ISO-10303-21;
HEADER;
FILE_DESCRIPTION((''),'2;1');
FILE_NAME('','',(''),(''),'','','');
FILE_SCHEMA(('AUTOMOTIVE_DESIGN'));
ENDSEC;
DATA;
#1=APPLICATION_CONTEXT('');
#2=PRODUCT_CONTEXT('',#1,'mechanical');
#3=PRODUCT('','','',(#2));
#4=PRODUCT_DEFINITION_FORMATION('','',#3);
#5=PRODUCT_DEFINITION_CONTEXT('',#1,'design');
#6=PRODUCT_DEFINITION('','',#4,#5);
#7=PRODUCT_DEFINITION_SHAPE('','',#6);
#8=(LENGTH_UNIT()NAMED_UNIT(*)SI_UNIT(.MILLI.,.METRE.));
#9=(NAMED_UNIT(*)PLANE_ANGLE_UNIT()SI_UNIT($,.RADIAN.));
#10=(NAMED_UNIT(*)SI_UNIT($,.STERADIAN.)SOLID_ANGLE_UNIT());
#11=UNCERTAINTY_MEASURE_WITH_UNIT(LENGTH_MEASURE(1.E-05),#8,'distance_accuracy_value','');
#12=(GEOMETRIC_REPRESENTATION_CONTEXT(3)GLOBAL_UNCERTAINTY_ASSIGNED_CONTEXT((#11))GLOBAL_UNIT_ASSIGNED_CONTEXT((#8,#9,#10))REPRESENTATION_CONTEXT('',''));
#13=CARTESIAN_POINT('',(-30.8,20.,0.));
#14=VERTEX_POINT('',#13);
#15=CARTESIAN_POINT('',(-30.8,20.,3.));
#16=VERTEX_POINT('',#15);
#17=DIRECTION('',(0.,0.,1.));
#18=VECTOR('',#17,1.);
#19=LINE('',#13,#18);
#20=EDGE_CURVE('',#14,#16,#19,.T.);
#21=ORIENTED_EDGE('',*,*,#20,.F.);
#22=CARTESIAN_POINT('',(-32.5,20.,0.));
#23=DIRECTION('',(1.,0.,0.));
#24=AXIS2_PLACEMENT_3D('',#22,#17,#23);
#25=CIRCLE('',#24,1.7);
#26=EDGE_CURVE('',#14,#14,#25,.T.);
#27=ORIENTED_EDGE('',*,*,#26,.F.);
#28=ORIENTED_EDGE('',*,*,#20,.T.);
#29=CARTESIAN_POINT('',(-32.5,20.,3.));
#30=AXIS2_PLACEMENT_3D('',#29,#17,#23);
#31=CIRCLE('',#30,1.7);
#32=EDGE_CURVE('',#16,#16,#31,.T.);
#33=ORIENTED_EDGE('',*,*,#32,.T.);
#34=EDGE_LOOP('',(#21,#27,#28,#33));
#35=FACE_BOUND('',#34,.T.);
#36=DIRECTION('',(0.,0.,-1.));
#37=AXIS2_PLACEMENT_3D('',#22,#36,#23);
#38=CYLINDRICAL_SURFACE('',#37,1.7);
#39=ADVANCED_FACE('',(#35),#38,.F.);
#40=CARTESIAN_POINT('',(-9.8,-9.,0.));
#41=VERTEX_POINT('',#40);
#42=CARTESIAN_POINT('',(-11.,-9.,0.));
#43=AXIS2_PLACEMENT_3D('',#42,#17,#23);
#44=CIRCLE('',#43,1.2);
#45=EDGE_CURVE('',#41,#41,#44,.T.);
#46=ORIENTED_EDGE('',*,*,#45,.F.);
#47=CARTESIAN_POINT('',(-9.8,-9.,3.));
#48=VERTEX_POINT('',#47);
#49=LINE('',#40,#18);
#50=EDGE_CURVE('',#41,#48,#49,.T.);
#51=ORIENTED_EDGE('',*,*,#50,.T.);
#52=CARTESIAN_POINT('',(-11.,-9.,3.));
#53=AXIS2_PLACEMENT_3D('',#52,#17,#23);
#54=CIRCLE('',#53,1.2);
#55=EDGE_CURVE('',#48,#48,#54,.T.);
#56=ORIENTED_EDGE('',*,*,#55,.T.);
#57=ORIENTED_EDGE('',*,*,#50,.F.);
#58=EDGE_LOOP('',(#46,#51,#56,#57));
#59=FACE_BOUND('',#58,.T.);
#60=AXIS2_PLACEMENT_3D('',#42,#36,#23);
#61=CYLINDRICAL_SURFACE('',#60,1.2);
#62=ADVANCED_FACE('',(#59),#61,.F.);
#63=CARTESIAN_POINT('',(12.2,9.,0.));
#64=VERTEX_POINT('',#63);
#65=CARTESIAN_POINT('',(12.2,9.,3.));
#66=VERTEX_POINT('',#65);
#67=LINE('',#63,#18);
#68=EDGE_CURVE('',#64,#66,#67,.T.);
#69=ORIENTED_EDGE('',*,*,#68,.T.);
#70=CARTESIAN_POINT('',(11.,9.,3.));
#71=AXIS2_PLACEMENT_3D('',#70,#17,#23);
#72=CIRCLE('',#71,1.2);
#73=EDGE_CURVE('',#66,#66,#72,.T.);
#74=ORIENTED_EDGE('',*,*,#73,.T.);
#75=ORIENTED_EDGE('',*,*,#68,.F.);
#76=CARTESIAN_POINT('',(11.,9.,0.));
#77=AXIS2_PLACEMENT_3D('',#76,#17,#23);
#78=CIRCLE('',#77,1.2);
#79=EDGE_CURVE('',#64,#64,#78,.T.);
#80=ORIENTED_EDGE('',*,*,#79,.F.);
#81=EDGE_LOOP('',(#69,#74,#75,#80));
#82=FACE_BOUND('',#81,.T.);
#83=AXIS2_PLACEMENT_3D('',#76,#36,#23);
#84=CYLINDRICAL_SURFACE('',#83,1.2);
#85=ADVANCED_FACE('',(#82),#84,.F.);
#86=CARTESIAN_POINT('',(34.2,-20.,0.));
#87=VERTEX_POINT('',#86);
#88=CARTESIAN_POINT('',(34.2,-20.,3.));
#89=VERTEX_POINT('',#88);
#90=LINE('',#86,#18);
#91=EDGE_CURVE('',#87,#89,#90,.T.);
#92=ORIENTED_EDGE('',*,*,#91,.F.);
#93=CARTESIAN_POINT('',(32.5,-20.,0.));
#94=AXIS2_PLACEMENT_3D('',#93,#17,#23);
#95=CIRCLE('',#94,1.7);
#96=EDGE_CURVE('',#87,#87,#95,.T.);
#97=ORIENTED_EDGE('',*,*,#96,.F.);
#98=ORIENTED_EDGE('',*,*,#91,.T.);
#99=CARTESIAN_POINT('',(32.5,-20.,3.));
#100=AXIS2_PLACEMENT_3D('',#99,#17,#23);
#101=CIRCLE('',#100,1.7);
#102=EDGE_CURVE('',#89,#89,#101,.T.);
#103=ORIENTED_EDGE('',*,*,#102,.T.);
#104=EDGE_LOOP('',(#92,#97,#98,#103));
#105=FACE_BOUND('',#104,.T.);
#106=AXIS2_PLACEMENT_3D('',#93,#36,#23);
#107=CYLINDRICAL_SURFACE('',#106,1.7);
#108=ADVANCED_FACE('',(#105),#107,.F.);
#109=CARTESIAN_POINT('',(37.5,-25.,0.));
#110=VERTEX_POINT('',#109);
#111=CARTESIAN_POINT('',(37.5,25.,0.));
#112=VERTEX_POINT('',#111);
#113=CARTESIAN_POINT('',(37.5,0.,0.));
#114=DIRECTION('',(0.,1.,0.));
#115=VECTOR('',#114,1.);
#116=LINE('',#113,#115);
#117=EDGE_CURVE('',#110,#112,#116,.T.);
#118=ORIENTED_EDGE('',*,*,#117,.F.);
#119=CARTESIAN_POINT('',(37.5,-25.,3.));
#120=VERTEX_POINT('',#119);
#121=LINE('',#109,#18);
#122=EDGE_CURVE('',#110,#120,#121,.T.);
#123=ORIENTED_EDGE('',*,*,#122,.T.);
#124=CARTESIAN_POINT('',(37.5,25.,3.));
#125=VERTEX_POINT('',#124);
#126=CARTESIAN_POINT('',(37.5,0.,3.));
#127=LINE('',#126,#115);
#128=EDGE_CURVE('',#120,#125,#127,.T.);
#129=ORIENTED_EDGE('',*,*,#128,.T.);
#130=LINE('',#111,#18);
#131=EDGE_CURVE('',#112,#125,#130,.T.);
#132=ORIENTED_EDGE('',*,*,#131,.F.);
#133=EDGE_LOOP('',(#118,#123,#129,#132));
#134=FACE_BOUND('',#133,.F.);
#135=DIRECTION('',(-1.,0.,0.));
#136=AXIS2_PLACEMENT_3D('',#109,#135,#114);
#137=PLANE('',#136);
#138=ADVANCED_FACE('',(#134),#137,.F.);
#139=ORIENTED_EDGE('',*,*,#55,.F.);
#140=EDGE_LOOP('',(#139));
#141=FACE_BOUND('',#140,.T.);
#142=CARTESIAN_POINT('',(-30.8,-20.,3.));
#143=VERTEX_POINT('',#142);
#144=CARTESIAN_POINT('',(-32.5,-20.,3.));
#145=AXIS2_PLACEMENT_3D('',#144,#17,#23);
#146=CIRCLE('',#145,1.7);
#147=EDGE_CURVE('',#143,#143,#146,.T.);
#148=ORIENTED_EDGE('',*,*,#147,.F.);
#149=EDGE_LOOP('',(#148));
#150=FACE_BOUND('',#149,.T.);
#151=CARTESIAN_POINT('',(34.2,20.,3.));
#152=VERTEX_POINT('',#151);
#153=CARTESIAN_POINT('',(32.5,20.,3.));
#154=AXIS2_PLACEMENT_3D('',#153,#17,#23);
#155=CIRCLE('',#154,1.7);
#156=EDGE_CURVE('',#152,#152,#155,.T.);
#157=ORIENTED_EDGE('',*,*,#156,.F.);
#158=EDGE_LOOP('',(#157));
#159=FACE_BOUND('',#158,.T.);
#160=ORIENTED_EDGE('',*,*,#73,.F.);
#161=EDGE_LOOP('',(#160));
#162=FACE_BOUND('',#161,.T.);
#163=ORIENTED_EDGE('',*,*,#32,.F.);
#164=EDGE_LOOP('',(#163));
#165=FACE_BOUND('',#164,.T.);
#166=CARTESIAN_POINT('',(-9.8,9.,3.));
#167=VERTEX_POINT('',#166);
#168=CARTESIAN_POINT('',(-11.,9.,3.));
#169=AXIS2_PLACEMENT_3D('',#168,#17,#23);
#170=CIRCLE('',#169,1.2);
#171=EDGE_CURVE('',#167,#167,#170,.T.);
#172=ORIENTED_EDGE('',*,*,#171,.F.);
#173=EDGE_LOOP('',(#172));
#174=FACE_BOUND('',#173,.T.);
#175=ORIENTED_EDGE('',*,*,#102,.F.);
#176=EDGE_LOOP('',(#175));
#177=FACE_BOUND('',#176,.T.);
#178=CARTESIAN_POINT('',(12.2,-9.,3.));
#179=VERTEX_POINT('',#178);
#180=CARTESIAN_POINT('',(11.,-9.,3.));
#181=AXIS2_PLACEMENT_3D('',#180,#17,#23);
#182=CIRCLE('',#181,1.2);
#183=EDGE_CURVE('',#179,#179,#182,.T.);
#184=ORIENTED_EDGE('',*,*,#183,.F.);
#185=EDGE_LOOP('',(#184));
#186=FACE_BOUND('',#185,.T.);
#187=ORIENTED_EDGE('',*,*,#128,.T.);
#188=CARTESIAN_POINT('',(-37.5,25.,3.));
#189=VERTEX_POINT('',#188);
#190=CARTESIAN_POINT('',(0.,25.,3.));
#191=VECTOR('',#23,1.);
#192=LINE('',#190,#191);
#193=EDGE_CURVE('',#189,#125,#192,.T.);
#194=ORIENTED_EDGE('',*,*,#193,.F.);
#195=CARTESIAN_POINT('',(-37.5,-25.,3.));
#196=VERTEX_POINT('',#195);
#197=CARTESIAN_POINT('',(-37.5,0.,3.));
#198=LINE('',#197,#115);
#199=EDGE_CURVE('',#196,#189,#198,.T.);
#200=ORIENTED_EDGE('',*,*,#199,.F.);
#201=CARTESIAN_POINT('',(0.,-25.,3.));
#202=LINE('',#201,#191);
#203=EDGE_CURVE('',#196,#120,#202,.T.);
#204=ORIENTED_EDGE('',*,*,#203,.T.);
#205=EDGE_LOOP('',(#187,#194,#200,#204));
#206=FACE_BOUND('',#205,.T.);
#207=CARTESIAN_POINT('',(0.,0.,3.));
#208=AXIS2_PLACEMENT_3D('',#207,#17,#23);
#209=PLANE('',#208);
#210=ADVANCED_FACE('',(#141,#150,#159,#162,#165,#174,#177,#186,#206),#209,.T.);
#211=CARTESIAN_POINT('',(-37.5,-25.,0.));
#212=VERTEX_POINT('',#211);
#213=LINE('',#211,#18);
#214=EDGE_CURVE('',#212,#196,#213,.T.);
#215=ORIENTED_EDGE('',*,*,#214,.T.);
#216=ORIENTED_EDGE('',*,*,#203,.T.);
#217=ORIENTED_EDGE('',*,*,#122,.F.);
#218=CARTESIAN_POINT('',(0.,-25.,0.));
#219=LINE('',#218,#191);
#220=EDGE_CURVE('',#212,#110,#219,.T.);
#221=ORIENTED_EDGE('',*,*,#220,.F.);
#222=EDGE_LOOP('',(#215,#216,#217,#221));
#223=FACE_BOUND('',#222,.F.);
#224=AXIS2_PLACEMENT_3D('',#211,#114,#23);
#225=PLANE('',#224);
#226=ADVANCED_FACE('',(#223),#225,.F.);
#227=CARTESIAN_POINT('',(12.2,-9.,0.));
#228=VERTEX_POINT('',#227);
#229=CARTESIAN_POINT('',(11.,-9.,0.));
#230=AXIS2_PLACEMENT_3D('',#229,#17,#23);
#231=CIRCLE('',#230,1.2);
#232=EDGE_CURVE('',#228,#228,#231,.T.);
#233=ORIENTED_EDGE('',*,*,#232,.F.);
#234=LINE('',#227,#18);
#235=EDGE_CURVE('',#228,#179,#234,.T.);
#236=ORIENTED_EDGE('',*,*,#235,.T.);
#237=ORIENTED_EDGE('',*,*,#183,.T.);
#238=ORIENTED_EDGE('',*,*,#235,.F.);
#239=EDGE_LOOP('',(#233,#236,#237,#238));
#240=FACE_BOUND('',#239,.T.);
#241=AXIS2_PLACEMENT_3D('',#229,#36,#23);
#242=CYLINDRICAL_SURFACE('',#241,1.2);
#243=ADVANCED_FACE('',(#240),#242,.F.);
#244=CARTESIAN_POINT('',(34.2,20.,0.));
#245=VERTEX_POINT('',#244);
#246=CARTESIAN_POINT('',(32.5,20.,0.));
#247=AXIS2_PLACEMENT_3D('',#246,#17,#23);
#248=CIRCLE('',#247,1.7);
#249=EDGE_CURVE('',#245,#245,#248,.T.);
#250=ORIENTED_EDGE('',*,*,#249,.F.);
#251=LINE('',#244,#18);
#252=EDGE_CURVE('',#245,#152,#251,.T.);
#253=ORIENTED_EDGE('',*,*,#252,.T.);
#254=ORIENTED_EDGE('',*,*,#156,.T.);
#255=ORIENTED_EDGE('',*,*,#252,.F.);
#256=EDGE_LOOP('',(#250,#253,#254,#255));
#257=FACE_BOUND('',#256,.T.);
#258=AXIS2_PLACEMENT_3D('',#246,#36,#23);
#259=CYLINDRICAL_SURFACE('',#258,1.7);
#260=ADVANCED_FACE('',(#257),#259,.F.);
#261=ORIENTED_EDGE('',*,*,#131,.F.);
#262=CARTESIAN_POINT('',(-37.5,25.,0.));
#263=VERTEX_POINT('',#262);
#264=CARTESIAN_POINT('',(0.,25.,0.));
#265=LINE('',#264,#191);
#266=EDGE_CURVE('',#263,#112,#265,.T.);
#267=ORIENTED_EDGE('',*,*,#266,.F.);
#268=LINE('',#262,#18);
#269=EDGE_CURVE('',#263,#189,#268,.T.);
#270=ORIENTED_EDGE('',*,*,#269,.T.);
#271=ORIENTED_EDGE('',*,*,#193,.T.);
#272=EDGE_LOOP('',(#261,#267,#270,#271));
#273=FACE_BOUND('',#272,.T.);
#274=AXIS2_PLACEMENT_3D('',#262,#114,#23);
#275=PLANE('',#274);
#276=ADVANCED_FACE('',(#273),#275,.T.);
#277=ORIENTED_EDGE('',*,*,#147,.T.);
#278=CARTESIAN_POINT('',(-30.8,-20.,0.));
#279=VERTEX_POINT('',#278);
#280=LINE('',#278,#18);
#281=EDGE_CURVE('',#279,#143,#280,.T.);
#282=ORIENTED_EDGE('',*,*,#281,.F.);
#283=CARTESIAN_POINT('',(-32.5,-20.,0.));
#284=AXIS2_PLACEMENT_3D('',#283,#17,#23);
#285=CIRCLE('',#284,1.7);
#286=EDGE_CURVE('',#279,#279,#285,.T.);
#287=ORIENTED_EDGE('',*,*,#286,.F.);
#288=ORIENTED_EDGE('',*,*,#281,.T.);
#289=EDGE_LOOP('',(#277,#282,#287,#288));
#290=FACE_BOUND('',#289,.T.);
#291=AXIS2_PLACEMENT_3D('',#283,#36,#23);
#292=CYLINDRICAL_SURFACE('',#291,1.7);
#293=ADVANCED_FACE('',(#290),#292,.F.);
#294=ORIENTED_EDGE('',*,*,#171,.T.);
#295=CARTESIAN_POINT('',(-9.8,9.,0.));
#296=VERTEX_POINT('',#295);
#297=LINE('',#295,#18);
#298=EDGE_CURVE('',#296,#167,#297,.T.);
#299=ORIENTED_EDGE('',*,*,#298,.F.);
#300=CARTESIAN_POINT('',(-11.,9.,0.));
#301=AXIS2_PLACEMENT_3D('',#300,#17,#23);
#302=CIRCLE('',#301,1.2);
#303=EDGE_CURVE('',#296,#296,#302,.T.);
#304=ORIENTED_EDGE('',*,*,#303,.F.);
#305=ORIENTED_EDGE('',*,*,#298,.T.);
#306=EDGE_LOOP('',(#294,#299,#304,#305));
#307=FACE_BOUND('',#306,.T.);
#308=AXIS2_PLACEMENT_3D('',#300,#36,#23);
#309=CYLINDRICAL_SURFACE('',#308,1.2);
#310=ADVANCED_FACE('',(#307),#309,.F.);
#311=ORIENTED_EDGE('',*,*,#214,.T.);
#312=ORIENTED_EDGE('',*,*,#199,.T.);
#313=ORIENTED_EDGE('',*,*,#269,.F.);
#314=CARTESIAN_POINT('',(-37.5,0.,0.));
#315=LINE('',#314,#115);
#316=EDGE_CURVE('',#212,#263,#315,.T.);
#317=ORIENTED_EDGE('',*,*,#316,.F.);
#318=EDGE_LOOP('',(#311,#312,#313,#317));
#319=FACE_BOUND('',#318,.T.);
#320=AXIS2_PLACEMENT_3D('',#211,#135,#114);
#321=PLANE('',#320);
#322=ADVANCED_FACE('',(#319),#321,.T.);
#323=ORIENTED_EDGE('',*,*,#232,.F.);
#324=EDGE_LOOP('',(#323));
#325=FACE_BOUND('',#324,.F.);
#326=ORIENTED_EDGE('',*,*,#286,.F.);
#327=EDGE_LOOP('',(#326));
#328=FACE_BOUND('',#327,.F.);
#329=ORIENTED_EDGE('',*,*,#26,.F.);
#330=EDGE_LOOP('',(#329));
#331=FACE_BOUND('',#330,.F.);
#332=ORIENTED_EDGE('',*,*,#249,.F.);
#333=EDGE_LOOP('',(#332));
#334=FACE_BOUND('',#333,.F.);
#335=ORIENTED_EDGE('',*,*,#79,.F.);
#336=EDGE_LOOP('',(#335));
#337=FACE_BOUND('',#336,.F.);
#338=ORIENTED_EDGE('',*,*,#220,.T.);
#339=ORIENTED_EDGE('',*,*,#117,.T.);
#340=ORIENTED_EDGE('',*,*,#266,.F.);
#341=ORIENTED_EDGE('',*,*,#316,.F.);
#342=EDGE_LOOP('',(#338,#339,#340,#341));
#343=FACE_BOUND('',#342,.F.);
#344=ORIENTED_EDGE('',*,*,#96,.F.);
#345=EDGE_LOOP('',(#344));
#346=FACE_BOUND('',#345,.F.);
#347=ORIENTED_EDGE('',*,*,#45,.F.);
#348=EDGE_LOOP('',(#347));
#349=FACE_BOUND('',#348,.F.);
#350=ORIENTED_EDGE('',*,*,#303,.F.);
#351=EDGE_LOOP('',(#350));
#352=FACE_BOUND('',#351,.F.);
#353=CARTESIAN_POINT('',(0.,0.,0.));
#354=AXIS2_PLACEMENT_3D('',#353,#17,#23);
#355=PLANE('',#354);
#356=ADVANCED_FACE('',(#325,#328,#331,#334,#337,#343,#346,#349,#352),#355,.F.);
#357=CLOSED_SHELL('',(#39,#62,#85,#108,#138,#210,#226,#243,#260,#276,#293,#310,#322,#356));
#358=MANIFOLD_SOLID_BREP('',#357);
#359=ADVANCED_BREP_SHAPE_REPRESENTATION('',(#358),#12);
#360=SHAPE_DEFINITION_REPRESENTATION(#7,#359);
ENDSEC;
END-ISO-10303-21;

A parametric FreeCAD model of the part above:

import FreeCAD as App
import Part
import Sketcher
Q = App.Units.Quantity

doc = App.newDocument("Part")
params = doc.addObject("Spreadsheet::Sheet", "Params")
for row, (alias, value) in enumerate([
    ("sketch1_diameter", "3.4 mm"),
    ("sketch1_diameter2", "2.4 mm"),
    ("sketch1_width", "75 mm"),
    ("sketch1_height", "50 mm"),
    ("pad1_length", "3 mm"),
], start=1):
    params.set(f"A{row}", alias)
    params.set(f"B{row}", "=" + value)
    params.setAlias(f"B{row}", alias)

body = doc.addObject("PartDesign::Body", "Body")

sketch1 = body.newObject("Sketcher::SketchObject", "Sketch")
sketch1.AttachmentSupport = (doc.getObject("XY_Plane"), [""])
sketch1.MapMode = "FlatFace"
sketch1.addGeometry([
    Part.LineSegment(App.Vector(-37.5, 25, 0), App.Vector(-37.5, -25, 0)),
    Part.LineSegment(App.Vector(-37.5, -25, 0), App.Vector(37.5, -25, 0)),
    Part.LineSegment(App.Vector(37.5, -25, 0), App.Vector(37.5, 25, 0)),
    Part.LineSegment(App.Vector(37.5, 25, 0), App.Vector(-37.5, 25, 0)),
    Part.Circle(App.Vector(-32.5, -20, 0), App.Vector(0, 0, 1), 1.7),
    Part.Circle(App.Vector(-11, -9, 0), App.Vector(0, 0, 1), 1.2),
    Part.Circle(App.Vector(32.5, -20, 0), App.Vector(0, 0, 1), 1.7),
    Part.Circle(App.Vector(11, -9, 0), App.Vector(0, 0, 1), 1.2),
    Part.Circle(App.Vector(-11, 9, 0), App.Vector(0, 0, 1), 1.2),
    Part.Circle(App.Vector(-32.5, 20, 0), App.Vector(0, 0, 1), 1.7),
    Part.Circle(App.Vector(11, 9, 0), App.Vector(0, 0, 1), 1.2),
    Part.Circle(App.Vector(32.5, 20, 0), App.Vector(0, 0, 1), 1.7),
], False)
sketch1.addConstraint([
    Sketcher.Constraint("Coincident", 0, 2, 1, 1),
    Sketcher.Constraint("Coincident", 1, 2, 2, 1),
    Sketcher.Constraint("Coincident", 2, 2, 3, 1),
    Sketcher.Constraint("Coincident", 3, 2, 0, 1),
    Sketcher.Constraint("Vertical", 0),
    Sketcher.Constraint("Horizontal", 1),
    Sketcher.Constraint("Vertical", 2),
    Sketcher.Constraint("Horizontal", 3),
    Sketcher.Constraint("Equal", 4, 6),
    Sketcher.Constraint("Equal", 5, 7),
    Sketcher.Constraint("Equal", 7, 8),
    Sketcher.Constraint("Equal", 6, 9),
    Sketcher.Constraint("Equal", 8, 10),
    Sketcher.Constraint("Equal", 9, 11),
    Sketcher.Constraint("Symmetric", 7, 3, 8, 3, -1, 1),
    Sketcher.Constraint("Symmetric", 6, 3, 9, 3, -1, 1),
    Sketcher.Constraint("Symmetric", 5, 3, 10, 3, -1, 1),
    Sketcher.Constraint("Symmetric", 4, 3, 11, 3, -1, 1),
    Sketcher.Constraint("Symmetric", 0, 2, 2, 2, -1, 1),
    Sketcher.Constraint("Symmetric", 4, 3, 6, 3, -2),
    Sketcher.Constraint("Symmetric", 5, 3, 7, 3, -2),
    Sketcher.Constraint("Diameter", 4, Q("3.4 mm")),
    Sketcher.Constraint("Diameter", 5, Q("2.4 mm")),
    Sketcher.Constraint("DistanceX", 1, 1, 1, 2, Q("75 mm")),
    Sketcher.Constraint("DistanceY", 0, 2, 0, 1, Q("50 mm")),
    Sketcher.Constraint("DistanceY", 4, 3, -1, 1, Q("20 mm")),
    Sketcher.Constraint("DistanceX", 5, 3, -1, 1, Q("11 mm")),
    Sketcher.Constraint("DistanceY", 5, 3, -1, 1, Q("9 mm")),
    Sketcher.Constraint("DistanceX", 4, 3, 6, 3, Q("65 mm")),
])
sketch1.setExpression("Constraints[21]", "Params.sketch1_diameter")
sketch1.setExpression("Constraints[22]", "Params.sketch1_diameter2")
sketch1.setExpression("Constraints[23]", "Params.sketch1_width")
sketch1.setExpression("Constraints[24]", "Params.sketch1_height")
pad1 = body.newObject("PartDesign::Pad", "Pad")
pad1.Profile = sketch1
pad1.setExpression("Length", "Params.pad1_length")

doc.recompute()
